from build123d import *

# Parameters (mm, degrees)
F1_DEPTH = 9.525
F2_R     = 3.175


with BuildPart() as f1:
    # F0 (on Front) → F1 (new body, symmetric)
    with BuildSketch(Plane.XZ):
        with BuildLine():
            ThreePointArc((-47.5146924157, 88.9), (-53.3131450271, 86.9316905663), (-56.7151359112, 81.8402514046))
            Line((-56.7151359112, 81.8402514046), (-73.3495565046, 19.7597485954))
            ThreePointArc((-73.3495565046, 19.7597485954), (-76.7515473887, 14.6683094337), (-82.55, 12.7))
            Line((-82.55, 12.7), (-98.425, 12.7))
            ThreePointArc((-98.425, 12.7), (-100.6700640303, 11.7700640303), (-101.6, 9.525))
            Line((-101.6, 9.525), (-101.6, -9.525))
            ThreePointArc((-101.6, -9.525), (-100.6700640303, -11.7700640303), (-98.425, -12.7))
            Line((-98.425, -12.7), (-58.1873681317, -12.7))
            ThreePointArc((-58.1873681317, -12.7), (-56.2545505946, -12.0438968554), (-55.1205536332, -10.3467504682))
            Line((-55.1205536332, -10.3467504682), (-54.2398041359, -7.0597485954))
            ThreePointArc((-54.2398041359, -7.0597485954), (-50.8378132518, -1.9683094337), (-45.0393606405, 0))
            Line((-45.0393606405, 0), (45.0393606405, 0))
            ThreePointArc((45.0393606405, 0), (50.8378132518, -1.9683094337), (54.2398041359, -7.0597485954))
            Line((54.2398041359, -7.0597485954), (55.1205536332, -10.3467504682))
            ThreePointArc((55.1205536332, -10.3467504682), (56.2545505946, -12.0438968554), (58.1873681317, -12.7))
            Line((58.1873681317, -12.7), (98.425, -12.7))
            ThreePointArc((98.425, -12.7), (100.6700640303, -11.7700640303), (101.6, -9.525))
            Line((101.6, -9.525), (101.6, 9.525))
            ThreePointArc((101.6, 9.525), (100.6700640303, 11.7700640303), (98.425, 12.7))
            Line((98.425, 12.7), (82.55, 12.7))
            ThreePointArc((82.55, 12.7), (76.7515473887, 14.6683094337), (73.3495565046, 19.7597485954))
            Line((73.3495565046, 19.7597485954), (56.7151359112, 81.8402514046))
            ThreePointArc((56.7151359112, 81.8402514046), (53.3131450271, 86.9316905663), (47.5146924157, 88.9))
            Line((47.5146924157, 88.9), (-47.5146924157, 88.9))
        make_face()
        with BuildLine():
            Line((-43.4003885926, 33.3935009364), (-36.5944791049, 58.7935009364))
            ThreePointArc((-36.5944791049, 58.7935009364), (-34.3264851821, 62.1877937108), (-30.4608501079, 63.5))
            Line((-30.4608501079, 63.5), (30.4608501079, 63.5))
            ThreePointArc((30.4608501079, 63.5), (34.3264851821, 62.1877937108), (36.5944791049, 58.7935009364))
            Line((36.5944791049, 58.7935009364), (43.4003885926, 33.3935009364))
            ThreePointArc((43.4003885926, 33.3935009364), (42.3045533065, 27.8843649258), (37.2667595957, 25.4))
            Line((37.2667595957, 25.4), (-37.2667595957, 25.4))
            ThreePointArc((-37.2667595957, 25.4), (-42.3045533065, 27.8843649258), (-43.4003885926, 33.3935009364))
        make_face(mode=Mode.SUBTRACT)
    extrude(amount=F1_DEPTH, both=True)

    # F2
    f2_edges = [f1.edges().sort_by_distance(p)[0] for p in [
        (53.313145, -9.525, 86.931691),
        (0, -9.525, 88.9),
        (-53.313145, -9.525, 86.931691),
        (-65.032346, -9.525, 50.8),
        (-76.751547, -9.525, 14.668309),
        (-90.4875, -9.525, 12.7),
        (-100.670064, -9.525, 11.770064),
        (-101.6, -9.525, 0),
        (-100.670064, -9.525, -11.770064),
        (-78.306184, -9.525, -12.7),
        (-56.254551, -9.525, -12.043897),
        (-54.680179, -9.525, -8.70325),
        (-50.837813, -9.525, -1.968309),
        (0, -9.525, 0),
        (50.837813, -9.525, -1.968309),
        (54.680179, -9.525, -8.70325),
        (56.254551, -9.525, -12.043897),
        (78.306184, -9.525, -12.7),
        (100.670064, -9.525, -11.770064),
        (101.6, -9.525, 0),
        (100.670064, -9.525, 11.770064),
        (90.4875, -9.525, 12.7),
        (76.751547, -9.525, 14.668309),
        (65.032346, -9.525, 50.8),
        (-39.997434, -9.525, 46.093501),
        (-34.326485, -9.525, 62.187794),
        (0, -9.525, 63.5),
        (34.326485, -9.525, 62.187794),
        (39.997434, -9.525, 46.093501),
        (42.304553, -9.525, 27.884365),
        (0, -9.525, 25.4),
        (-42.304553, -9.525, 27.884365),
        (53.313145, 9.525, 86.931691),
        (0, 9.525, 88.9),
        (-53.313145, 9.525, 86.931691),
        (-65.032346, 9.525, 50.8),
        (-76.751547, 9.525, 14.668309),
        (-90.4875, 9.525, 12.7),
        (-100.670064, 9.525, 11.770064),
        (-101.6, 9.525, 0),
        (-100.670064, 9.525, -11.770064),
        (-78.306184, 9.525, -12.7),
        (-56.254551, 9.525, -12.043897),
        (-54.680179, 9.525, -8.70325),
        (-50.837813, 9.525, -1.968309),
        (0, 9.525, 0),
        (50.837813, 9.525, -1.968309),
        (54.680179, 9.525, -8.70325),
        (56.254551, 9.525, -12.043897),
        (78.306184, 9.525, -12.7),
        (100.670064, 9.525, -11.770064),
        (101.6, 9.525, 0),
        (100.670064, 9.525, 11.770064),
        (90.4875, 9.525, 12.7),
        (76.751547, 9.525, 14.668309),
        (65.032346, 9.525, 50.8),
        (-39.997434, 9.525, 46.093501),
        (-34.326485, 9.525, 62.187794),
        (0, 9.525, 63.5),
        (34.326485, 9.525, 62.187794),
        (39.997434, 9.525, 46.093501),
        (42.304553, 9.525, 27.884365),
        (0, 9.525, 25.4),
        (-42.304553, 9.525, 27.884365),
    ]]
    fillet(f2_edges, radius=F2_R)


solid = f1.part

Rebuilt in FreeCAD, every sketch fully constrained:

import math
import FreeCAD as App
import Part
import Sketcher
from FreeCAD import Vector
Q = App.Units.Quantity


def edges_at(feature, points):
    """Names of the edges that pass closest to the given points."""
    edges = feature.Shape.Edges
    near = lambda p: min(range(len(edges)), key=lambda i: edges[i].distToShape(Part.Vertex(*p))[0])
    return sorted({f"Edge{near(p) + 1}" for p in points})

doc = App.newDocument("Part")
body = doc.addObject("PartDesign::Body", "Body")

sketch1 = body.newObject("Sketcher::SketchObject", "Sketch")
sketch1.AttachmentSupport = (doc.getObject("XZ_Plane"), [""])
sketch1.MapMode = "FlatFace"
sketch1.addGeometry([
    Part.ArcOfCircle(Part.Circle(Vector(-47.514692, 79.375, 0), Vector(0, 0, 1), 9.525), math.radians(90), math.radians(165)),
    Part.LineSegment(Vector(-56.715136, 81.840251, 0), Vector(-73.349557, 19.759749, 0)),
    Part.ArcOfCircle(Part.Circle(Vector(-82.55, 22.225, 0), Vector(0, 0, 1), 9.525), math.radians(-90), math.radians(-15)),
    Part.LineSegment(Vector(-82.55, 12.7, 0), Vector(-98.425, 12.7, 0)),
    Part.ArcOfCircle(Part.Circle(Vector(-98.425, 9.525, 0), Vector(0, 0, 1), 3.175), math.radians(90), math.radians(180)),
    Part.LineSegment(Vector(-101.6, 9.525, 0), Vector(-101.6, -9.525, 0)),
    Part.ArcOfCircle(Part.Circle(Vector(-98.425, -9.525, 0), Vector(0, 0, 1), 3.175), math.radians(180), math.radians(270)),
    Part.LineSegment(Vector(-98.425, -12.7, 0), Vector(-58.187368, -12.7, 0)),
    Part.ArcOfCircle(Part.Circle(Vector(-58.187368, -9.525, 0), Vector(0, 0, 1), 3.175), math.radians(-90), math.radians(-15)),
    Part.LineSegment(Vector(-55.120554, -10.34675, 0), Vector(-54.239804, -7.059749, 0)),
    Part.ArcOfCircle(Part.Circle(Vector(-45.039361, -9.525, 0), Vector(0, 0, 1), 9.525), math.radians(90), math.radians(165)),
    Part.LineSegment(Vector(-45.039361, 0, 0), Vector(45.039361, 0, 0)),
    Part.ArcOfCircle(Part.Circle(Vector(45.039361, -9.525, 0), Vector(0, 0, 1), 9.525), math.radians(15), math.radians(90)),
    Part.LineSegment(Vector(54.239804, -7.059749, 0), Vector(55.120554, -10.34675, 0)),
    Part.ArcOfCircle(Part.Circle(Vector(58.187368, -9.525, 0), Vector(0, 0, 1), 3.175), math.radians(-165), math.radians(-90)),
    Part.LineSegment(Vector(58.187368, -12.7, 0), Vector(98.425, -12.7, 0)),
    Part.ArcOfCircle(Part.Circle(Vector(98.425, -9.525, 0), Vector(0, 0, 1), 3.175), math.radians(-90), math.radians(0)),
    Part.LineSegment(Vector(101.6, -9.525, 0), Vector(101.6, 9.525, 0)),
    Part.ArcOfCircle(Part.Circle(Vector(98.425, 9.525, 0), Vector(0, 0, 1), 3.175), math.radians(0), math.radians(90)),
    Part.LineSegment(Vector(98.425, 12.7, 0), Vector(82.55, 12.7, 0)),
    Part.ArcOfCircle(Part.Circle(Vector(82.55, 22.225, 0), Vector(0, 0, 1), 9.525), math.radians(-165), math.radians(-90)),
    Part.LineSegment(Vector(73.349557, 19.759749, 0), Vector(56.715136, 81.840251, 0)),
    Part.ArcOfCircle(Part.Circle(Vector(47.514692, 79.375, 0), Vector(0, 0, 1), 9.525), math.radians(15), math.radians(90)),
    Part.LineSegment(Vector(47.514692, 88.9, 0), Vector(-47.514692, 88.9, 0)),
    Part.ArcOfCircle(Part.Circle(Vector(-37.26676, 31.75, 0), Vector(0, 0, 1), 6.35), math.radians(165), math.radians(270)),
    Part.LineSegment(Vector(-43.400389, 33.393501, 0), Vector(-36.594479, 58.793501, 0)),
    Part.ArcOfCircle(Part.Circle(Vector(-30.46085, 57.15, 0), Vector(0, 0, 1), 6.35), math.radians(90), math.radians(165)),
    Part.LineSegment(Vector(-30.46085, 63.5, 0), Vector(30.46085, 63.5, 0)),
    Part.ArcOfCircle(Part.Circle(Vector(30.46085, 57.15, 0), Vector(0, 0, 1), 6.35), math.radians(15), math.radians(90)),
    Part.LineSegment(Vector(36.594479, 58.793501, 0), Vector(43.400389, 33.393501, 0)),
    Part.ArcOfCircle(Part.Circle(Vector(37.26676, 31.75, 0), Vector(0, 0, 1), 6.35), math.radians(-90), math.radians(15)),
    Part.LineSegment(Vector(37.26676, 25.4, 0), Vector(-37.26676, 25.4, 0)),
], False)
sketch1.addConstraint([
    Sketcher.Constraint("Tangent", 0, 2, 1, 1),
    Sketcher.Constraint("Tangent", 1, 2, 2, 2),
    Sketcher.Constraint("Tangent", 2, 1, 3, 1),
    Sketcher.Constraint("Tangent", 3, 2, 4, 1),
    Sketcher.Constraint("Tangent", 4, 2, 5, 1),
    Sketcher.Constraint("Tangent", 5, 2, 6, 1),
    Sketcher.Constraint("Tangent", 6, 2, 7, 1),
    Sketcher.Constraint("Tangent", 7, 2, 8, 1),
    Sketcher.Constraint("Tangent", 8, 2, 9, 1),
    Sketcher.Constraint("Tangent", 9, 2, 10, 2),
    Sketcher.Constraint("Tangent", 10, 1, 11, 1),
    Sketcher.Constraint("Tangent", 11, 2, 12, 2),
    Sketcher.Constraint("Tangent", 12, 1, 13, 1),
    Sketcher.Constraint("Tangent", 13, 2, 14, 1),
    Sketcher.Constraint("Tangent", 14, 2, 15, 1),
    Sketcher.Constraint("Tangent", 15, 2, 16, 1),
    Sketcher.Constraint("Tangent", 16, 2, 17, 1),
    Sketcher.Constraint("Tangent", 17, 2, 18, 1),
    Sketcher.Constraint("Tangent", 18, 2, 19, 1),
    Sketcher.Constraint("Tangent", 19, 2, 20, 2),
    Sketcher.Constraint("Tangent", 20, 1, 21, 1),
    Sketcher.Constraint("Tangent", 21, 2, 22, 1),
    Sketcher.Constraint("Tangent", 22, 2, 23, 1),
    Sketcher.Constraint("Tangent", 23, 2, 0, 1),
    Sketcher.Constraint("Tangent", 24, 1, 25, 1),
    Sketcher.Constraint("Tangent", 25, 2, 26, 2),
    Sketcher.Constraint("Tangent", 26, 1, 27, 1),
    Sketcher.Constraint("Tangent", 27, 2, 28, 2),
    Sketcher.Constraint("Tangent", 28, 1, 29, 1),
    Sketcher.Constraint("Tangent", 29, 2, 30, 2),
    Sketcher.Constraint("Tangent", 30, 1, 31, 1),
    Sketcher.Constraint("Tangent", 31, 2, 24, 2),
    Sketcher.Constraint("Horizontal", 3),
    Sketcher.Constraint("Vertical", 5),
    Sketcher.Constraint("Horizontal", 7),
    Sketcher.Constraint("Horizontal", 11),
    Sketcher.Constraint("Horizontal", 15),
    Sketcher.Constraint("Vertical", 17),
    Sketcher.Constraint("Horizontal", 19),
    Sketcher.Constraint("Horizontal", 23),
    Sketcher.Constraint("Horizontal", 27),
    Sketcher.Constraint("Horizontal", 31),
    Sketcher.Constraint("Equal", 0, 2),
    Sketcher.Constraint("Equal", 4, 6),
    Sketcher.Constraint("Equal", 6, 8),
    Sketcher.Constraint("Equal", 2, 10),
    Sketcher.Constraint("Equal", 10, 12),
    Sketcher.Constraint("Equal", 8, 14),
    Sketcher.Constraint("Equal", 14, 16),
    Sketcher.Constraint("Equal", 16, 18),
    Sketcher.Constraint("Equal", 12, 20),
    Sketcher.Constraint("Equal", 20, 22),
    Sketcher.Constraint("Equal", 24, 26),
    Sketcher.Constraint("Equal", 26, 28),
    Sketcher.Constraint("Equal", 28, 30),
    Sketcher.Constraint("Symmetric", 4, 3, 16, 3, -1, 1),
    Sketcher.Constraint("Symmetric", 10, 1, 11, 2, -1, 1),
    Sketcher.Constraint("Symmetric", 8, 3, 14, 3, -2),
    Sketcher.Constraint("Symmetric", 2, 3, 20, 3, -2),
    Sketcher.Constraint("Symmetric", 25, 2, 28, 1, -2),
    Sketcher.Constraint("Parallel", 1, 9),
    Sketcher.Constraint("Parallel", 13, 21),
    Sketcher.Constraint("Parallel", 9, 25),
    Sketcher.Constraint("Horizontal", 8, 3, 10, 3),
    Sketcher.Constraint("Radius", 24, Q("0.25 in")),
    Sketcher.Constraint("DistanceX", 4, 2, -1, 1, Q("4 in")),
    Sketcher.Constraint("DistanceY", -1, 1, 30, 1, Q("1 in")),
    Sketcher.Constraint("Angle", 1, Q("-105 deg")),
    Sketcher.Constraint("Radius", 0, Q("0.375 in")),
    Sketcher.Constraint("Radius", 4, Q("0.125 in")),
    Sketcher.Constraint("DistanceY", 24, 3, 26, 3, Q("1 in")),
    Sketcher.Constraint("DistanceY", 26, 1, 23, 2, Q("1 in")),
    Sketcher.Constraint("DistanceX", 3, 2, 3, 1, Q("0.625 in")),
    Sketcher.Constraint("DistanceX", 27, 1, 27, 2, Q("60.9217 mm")),
    Sketcher.Constraint("DistanceX", 7, 1, 7, 2, Q("40.237632 mm")),
])
pad1 = body.newObject("PartDesign::Pad", "Pad")
pad1.Profile = sketch1
pad1.Length = Q("0.75 in")
pad1.Midplane = True
doc.recompute()

fillet = body.newObject("PartDesign::Fillet", "Fillet")
fillet.Base = (pad1, edges_at(pad1, [
    (53.313, -9.525, 86.932),
    (0, -9.525, 88.9),
    (-53.313, -9.525, 86.932),
    (-65.032, -9.525, 50.8),
    (-76.752, -9.525, 14.668),
    (-90.487, -9.525, 12.7),
    (-100.67, -9.525, 11.77),
    (-101.6, -9.525, 0),
    (-100.67, -9.525, -11.77),
    (-78.306, -9.525, -12.7),
    (-56.255, -9.525, -12.044),
    (-54.68, -9.525, -8.703),
    (-50.838, -9.525, -1.968),
    (0, -9.525, 0),
    (50.838, -9.525, -1.968),
    (54.68, -9.525, -8.703),
    (56.255, -9.525, -12.044),
    (78.306, -9.525, -12.7),
    (100.67, -9.525, -11.77),
    (101.6, -9.525, 0),
    (100.67, -9.525, 11.77),
    (90.487, -9.525, 12.7),
    (76.752, -9.525, 14.668),
    (65.032, -9.525, 50.8),
    (-39.997, -9.525, 46.094),
    (-34.326, -9.525, 62.188),
    (0, -9.525, 63.5),
    (34.326, -9.525, 62.188),
    (39.997, -9.525, 46.094),
    (42.305, -9.525, 27.884),
    (0, -9.525, 25.4),
    (-42.305, -9.525, 27.884),
    (53.313, 9.525, 86.932),
    (0, 9.525, 88.9),
    (-53.313, 9.525, 86.932),
    (-65.032, 9.525, 50.8),
    (-76.752, 9.525, 14.668),
    (-90.487, 9.525, 12.7),
    (-100.67, 9.525, 11.77),
    (-101.6, 9.525, 0),
    (-100.67, 9.525, -11.77),
    (-78.306, 9.525, -12.7),
    (-56.255, 9.525, -12.044),
    (-54.68, 9.525, -8.703),
    (-50.838, 9.525, -1.968),
    (0, 9.525, 0),
    (50.838, 9.525, -1.968),
    (54.68, 9.525, -8.703),
    (56.255, 9.525, -12.044),
    (78.306, 9.525, -12.7),
    (100.67, 9.525, -11.77),
    (101.6, 9.525, 0),
    (100.67, 9.525, 11.77),
    (90.487, 9.525, 12.7),
    (76.752, 9.525, 14.668),
    (65.032, 9.525, 50.8),
    (-39.997, 9.525, 46.094),
    (-34.326, 9.525, 62.188),
    (0, 9.525, 63.5),
    (34.326, 9.525, 62.188),
    (39.997, 9.525, 46.094),
    (42.305, 9.525, 27.884),
    (0, 9.525, 25.4),
    (-42.305, 9.525, 27.884),
]))
fillet.Radius = Q("0.125 in")

doc.recompute()
